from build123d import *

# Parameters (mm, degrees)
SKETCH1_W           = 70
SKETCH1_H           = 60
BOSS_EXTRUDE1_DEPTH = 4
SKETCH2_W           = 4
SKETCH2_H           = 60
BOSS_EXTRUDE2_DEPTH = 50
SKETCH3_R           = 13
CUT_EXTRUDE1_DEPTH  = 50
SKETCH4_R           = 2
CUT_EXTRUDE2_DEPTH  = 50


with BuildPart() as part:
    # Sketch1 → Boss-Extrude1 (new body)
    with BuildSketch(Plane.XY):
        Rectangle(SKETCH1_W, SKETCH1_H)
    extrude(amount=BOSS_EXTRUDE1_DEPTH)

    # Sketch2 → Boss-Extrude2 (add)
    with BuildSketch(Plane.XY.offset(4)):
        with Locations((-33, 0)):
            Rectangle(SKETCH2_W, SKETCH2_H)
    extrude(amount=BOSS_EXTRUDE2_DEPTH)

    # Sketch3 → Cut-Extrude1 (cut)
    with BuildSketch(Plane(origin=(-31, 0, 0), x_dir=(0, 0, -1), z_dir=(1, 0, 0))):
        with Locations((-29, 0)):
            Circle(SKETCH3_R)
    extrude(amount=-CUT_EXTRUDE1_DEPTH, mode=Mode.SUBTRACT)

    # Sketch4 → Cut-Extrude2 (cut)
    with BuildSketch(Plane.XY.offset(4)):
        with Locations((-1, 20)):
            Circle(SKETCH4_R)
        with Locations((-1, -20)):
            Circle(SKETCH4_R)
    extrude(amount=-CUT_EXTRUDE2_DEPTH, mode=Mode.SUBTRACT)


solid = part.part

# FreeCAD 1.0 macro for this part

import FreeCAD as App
import Part
import Sketcher

V = App.Vector


def add_polygon(sketch, points):
    """Adds a closed chain of lines whose ends are joined by coincident constraints."""
    first, n = sketch.GeometryCount, len(points)
    for a, b in zip(points, points[1:] + points[:1]):
        sketch.addGeometry(Part.LineSegment(App.Vector(*a, 0), App.Vector(*b, 0)), False)
    for i in range(n):
        sketch.addConstraint(Sketcher.Constraint("Coincident", first + i, 2, first + (i + 1) % n, 1))

doc = App.newDocument("Part")
body = doc.addObject("PartDesign::Body", "Body")

# Sketch on XY plane
sketch1 = body.newObject("Sketcher::SketchObject", "Sketch")
sketch1.AttachmentSupport = (doc.getObject("XY_Plane"), [""])
sketch1.MapMode = "FlatFace"
add_polygon(sketch1, [(-35, 30), (-35, -30), (35, -30), (35, 30)])  # lines 0-3
sketch1.addConstraint([
    Sketcher.Constraint("Vertical", 0),
    Sketcher.Constraint("Horizontal", 1),
    Sketcher.Constraint("Vertical", 2),
    Sketcher.Constraint("Horizontal", 3),
    Sketcher.Constraint("Symmetric", 0, 2, 2, 2, -1, 1),
    Sketcher.Constraint("DistanceX", 1, 1, 1, 2, 70.0),
    Sketcher.Constraint("DistanceY", 0, 2, 0, 1, 60.0),
])
pad1 = body.newObject("PartDesign::Pad", "Pad")
pad1.Profile = sketch1
pad1.Length = 4

# Sketch on XY plane
sketch2 = body.newObject("Sketcher::SketchObject", "Sketch001")
sketch2.AttachmentSupport = (doc.getObject("XY_Plane"), [""])
sketch2.MapMode = "FlatFace"
sketch2.AttachmentOffset = App.Placement(V(0, 0, 4), App.Rotation())
add_polygon(sketch2, [(-35, 30), (-35, -30), (-31, -30), (-31, 30)])  # lines 0-3
sketch2.addConstraint([
    Sketcher.Constraint("Vertical", 0),
    Sketcher.Constraint("Horizontal", 1),
    Sketcher.Constraint("Vertical", 2),
    Sketcher.Constraint("Horizontal", 3),
    Sketcher.Constraint("DistanceX", 1, 1, 1, 2, 4.0),
    Sketcher.Constraint("DistanceY", 0, 2, 0, 1, 60.0),
    Sketcher.Constraint("DistanceX", 0, 2, -1, 1, 35.0),
    Sketcher.Constraint("DistanceY", 0, 2, -1, 1, 30.0),
])
pad2 = body.newObject("PartDesign::Pad", "Pad001")
pad2.Profile = sketch2
pad2.Length = 50

# Sketch on YZ plane
sketch3 = body.newObject("Sketcher::SketchObject", "Sketch002")
sketch3.AttachmentSupport = (doc.getObject("YZ_Plane"), [""])
sketch3.MapMode = "FlatFace"
sketch3.AttachmentOffset = App.Placement(V(0, 0, -31), App.Rotation())
sketch3.addGeometry(Part.Circle(V(0, 29, 0), V(0, 0, 1), 13), False)
sketch3.addConstraint([
    Sketcher.Constraint("PointOnObject", 0, 3, -2),
    Sketcher.Constraint("Diameter", 0, 26.0),
    Sketcher.Constraint("DistanceY", -1, 1, 0, 3, 29.0),
])
pocket1 = body.newObject("PartDesign::Pocket", "Pocket")
pocket1.Profile = sketch3
pocket1.Length = 50

# Sketch on XY plane
sketch4 = body.newObject("Sketcher::SketchObject", "Sketch003")
sketch4.AttachmentSupport = (doc.getObject("XY_Plane"), [""])
sketch4.MapMode = "FlatFace"
sketch4.AttachmentOffset = App.Placement(V(0, 0, 4), App.Rotation())
sketch4.addGeometry([
    Part.Circle(V(-1, 20, 0), V(0, 0, 1), 2),
    Part.Circle(V(-1, -20, 0), V(0, 0, 1), 2),
], False)
sketch4.addConstraint([
    Sketcher.Constraint("Equal", 0, 1),
    Sketcher.Constraint("Symmetric", 0, 3, 1, 3, -1),
    Sketcher.Constraint("Diameter", 0, 4.0),
    Sketcher.Constraint("DistanceX", 0, 3, -1, 1, 1.0),
    Sketcher.Constraint("DistanceY", -1, 1, 0, 3, 20.0),
])
pocket2 = body.newObject("PartDesign::Pocket", "Pocket001")
pocket2.Profile = sketch4
pocket2.Length = 50

doc.recompute()
